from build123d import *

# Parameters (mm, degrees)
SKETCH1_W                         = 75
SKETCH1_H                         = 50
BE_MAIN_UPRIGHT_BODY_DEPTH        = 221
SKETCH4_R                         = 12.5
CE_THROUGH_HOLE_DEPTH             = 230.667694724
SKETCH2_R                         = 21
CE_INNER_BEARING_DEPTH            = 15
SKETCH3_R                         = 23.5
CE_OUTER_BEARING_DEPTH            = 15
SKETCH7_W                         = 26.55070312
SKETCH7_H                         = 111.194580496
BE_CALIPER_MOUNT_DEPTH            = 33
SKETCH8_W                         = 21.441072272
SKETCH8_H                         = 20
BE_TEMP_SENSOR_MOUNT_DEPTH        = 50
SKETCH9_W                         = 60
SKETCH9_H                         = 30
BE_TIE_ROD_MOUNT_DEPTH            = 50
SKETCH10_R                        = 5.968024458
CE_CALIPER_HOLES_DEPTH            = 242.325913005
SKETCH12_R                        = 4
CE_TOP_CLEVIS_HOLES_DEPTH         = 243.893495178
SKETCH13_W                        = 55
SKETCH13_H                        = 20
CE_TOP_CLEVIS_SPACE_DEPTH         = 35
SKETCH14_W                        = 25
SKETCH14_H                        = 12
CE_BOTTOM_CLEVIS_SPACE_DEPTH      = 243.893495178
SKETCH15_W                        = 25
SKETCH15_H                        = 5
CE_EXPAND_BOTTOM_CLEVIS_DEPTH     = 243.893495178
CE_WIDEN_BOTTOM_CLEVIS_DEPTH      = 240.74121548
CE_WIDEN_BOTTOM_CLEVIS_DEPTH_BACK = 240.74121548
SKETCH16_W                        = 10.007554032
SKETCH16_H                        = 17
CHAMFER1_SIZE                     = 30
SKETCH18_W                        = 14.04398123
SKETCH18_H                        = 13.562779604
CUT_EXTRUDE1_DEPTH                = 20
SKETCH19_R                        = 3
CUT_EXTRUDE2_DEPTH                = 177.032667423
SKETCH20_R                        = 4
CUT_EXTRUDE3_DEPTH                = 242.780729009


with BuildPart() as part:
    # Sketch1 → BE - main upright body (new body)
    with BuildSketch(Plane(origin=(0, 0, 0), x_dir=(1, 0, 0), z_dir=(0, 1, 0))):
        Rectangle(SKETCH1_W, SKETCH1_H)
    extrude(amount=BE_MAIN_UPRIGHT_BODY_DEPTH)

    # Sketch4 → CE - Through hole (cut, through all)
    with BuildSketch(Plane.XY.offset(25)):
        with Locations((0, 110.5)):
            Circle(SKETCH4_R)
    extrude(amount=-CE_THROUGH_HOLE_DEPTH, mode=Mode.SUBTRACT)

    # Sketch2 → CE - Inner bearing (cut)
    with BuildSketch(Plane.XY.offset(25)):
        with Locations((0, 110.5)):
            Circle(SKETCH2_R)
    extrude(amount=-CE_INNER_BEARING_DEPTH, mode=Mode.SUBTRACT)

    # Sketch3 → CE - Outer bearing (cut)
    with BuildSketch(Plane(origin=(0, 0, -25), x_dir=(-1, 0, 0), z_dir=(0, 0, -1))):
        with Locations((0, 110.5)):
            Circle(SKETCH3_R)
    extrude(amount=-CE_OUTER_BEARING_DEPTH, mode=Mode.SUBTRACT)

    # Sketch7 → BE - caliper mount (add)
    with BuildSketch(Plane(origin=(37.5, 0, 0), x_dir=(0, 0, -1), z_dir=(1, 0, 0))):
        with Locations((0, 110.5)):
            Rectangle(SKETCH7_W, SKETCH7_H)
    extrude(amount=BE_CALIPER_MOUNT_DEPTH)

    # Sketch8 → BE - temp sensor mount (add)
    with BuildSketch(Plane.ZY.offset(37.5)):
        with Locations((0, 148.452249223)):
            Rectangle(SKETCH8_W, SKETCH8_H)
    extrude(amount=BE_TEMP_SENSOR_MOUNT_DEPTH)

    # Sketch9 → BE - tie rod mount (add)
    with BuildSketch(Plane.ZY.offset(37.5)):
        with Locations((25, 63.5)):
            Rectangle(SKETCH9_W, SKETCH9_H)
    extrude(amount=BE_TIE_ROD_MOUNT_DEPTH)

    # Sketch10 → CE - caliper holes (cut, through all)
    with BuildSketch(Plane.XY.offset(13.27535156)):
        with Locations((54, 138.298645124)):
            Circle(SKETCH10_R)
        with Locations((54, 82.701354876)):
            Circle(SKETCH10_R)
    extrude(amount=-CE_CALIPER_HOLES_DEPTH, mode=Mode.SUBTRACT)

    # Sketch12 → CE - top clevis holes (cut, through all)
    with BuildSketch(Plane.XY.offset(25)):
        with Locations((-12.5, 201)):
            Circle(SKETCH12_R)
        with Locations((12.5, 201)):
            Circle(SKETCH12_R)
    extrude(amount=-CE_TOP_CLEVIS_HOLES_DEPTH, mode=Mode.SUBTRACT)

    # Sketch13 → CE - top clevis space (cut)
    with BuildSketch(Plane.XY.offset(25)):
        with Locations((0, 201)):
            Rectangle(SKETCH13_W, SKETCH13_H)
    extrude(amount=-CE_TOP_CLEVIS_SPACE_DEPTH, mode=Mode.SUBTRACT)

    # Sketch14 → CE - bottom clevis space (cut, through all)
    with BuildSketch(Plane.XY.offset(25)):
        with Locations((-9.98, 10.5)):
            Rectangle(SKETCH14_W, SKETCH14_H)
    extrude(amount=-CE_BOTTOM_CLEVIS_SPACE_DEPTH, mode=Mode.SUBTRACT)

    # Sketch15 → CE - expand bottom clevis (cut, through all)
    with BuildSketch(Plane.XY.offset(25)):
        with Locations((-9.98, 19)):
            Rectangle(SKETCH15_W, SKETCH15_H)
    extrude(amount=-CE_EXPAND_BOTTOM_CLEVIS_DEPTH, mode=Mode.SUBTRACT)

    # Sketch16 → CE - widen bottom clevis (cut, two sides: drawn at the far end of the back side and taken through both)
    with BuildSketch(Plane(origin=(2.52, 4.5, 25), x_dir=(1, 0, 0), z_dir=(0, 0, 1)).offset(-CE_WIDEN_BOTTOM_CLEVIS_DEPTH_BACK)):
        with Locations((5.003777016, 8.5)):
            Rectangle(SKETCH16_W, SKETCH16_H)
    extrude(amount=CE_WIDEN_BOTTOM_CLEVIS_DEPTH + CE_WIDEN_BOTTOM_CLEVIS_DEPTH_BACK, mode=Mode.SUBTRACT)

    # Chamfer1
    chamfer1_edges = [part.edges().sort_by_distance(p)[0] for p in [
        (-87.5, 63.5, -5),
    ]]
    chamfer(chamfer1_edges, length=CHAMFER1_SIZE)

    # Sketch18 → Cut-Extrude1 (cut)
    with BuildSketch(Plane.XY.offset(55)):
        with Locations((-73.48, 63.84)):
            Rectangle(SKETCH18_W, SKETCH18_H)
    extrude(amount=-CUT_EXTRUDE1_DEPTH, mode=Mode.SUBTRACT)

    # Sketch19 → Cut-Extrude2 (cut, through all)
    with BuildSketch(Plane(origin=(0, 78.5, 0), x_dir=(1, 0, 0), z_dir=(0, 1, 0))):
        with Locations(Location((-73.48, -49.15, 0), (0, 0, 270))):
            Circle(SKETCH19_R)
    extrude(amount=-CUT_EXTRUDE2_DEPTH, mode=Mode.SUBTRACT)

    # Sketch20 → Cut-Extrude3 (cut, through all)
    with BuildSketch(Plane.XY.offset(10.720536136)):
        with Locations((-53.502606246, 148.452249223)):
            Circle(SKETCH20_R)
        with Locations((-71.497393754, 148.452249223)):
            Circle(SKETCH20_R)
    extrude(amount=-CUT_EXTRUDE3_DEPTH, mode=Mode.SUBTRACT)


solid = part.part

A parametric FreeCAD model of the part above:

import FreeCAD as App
import Part
import Sketcher
Q = App.Units.Quantity


def edges_at(feature, points):
    """Names of the edges that pass closest to the given points."""
    edges = feature.Shape.Edges
    near = lambda p: min(range(len(edges)), key=lambda i: edges[i].distToShape(Part.Vertex(*p))[0])
    return sorted({f"Edge{near(p) + 1}" for p in points})


def add_polygon(sketch, points):
    """Adds a closed chain of lines whose ends are joined by coincident constraints."""
    first, n = sketch.GeometryCount, len(points)
    for a, b in zip(points, points[1:] + points[:1]):
        sketch.addGeometry(Part.LineSegment(App.Vector(*a, 0), App.Vector(*b, 0)), False)
    for i in range(n):
        sketch.addConstraint(Sketcher.Constraint("Coincident", first + i, 2, first + (i + 1) % n, 1))

doc = App.newDocument("Part")
params = doc.addObject("Spreadsheet::Sheet", "Params")
for row, (alias, value) in enumerate([
    ("sketch1_width", "75 mm"),
    ("sketch1_height", "50 mm"),
    ("pad1_length", "221 mm"),
    ("sketch2_diameter", "25 mm"),
    ("sketch3_diameter", "42 mm"),
    ("pocket2_length", "15 mm"),
    ("sketch4_diameter", "47 mm"),
    ("pocket3_length", "15 mm"),
    ("pad2_length", "33 mm"),
    ("sketch6_width", "20 mm"),
    ("pad3_length", "50 mm"),
    ("sketch7_width", "30 mm"),
    ("sketch7_height", "60 mm"),
    ("pad4_length", "50 mm"),
    ("sketch9_diameter", "8 mm"),
    ("sketch10_width", "55 mm"),
    ("sketch10_height", "20 mm"),
    ("pocket6_length", "35 mm"),
    ("sketch11_width", "25 mm"),
    ("sketch11_height", "12 mm"),
    ("sketch12_width", "25 mm"),
    ("sketch12_height", "5 mm"),
    ("sketch13_height", "17 mm"),
    ("chamfer_size", "30 mm"),
    ("pocket10_length", "20 mm"),
    ("sketch15_diameter", "6 mm"),
    ("sketch16_diameter", "8 mm"),
], start=1):
    params.set(f"A{row}", alias)
    params.set(f"B{row}", "=" + value)
    params.setAlias(f"B{row}", alias)

body = doc.addObject("PartDesign::Body", "Body")

# Sketch on XZ plane
sketch1 = body.newObject("Sketcher::SketchObject", "Sketch")
sketch1.AttachmentSupport = (doc.getObject("XZ_Plane"), [""])
sketch1.MapMode = "FlatFace"
add_polygon(sketch1, [(-38, -25), (-38, 25), (38, 25), (38, -25)])  # lines 0-3
sketch1.addConstraint(Sketcher.Constraint("Vertical", 0))
sketch1.addConstraint(Sketcher.Constraint("Horizontal", 1))
sketch1.addConstraint(Sketcher.Constraint("Vertical", 2))
sketch1.addConstraint(Sketcher.Constraint("Horizontal", 3))
sketch1.addConstraint(Sketcher.Constraint("Symmetric", 0, 2, 2, 2, -1, 1))
sketch1.addConstraint(Sketcher.Constraint("DistanceX", 1, 1, 1, 2, Q("75 mm")))
sketch1.addConstraint(Sketcher.Constraint("DistanceY", 0, 1, 0, 2, Q("50 mm")))
sketch1.setExpression("Constraints[9]", "Params.sketch1_width")
sketch1.setExpression("Constraints[10]", "Params.sketch1_height")
pad1 = body.newObject("PartDesign::Pad", "Pad")
pad1.Profile = sketch1
pad1.setExpression("Length", "Params.pad1_length")
pad1.Reversed = True

# Sketch on XY plane
sketch2 = body.newObject("Sketcher::SketchObject", "Sketch001")
sketch2.AttachmentSupport = (doc.getObject("XY_Plane"), [""])
sketch2.MapMode = "FlatFace"
sketch2.AttachmentOffset = App.Placement(App.Vector(0, 0, 25), App.Rotation())
sketch2.addGeometry(Part.Circle(App.Vector(0, 110, 0), App.Vector(0, 0, 1), 12), False)
sketch2.addConstraint(Sketcher.Constraint("PointOnObject", 0, 3, -2))
sketch2.addConstraint(Sketcher.Constraint("Diameter", 0, Q("25 mm")))
sketch2.addConstraint(Sketcher.Constraint("DistanceY", -1, 1, 0, 3, Q("110.5 mm")))
sketch2.setExpression("Constraints[1]", "Params.sketch2_diameter")
pocket1 = body.newObject("PartDesign::Pocket", "Pocket")
pocket1.Profile = sketch2
pocket1.Type = "ThroughAll"

# Sketch on XY plane
sketch3 = body.newObject("Sketcher::SketchObject", "Sketch002")
sketch3.AttachmentSupport = (doc.getObject("XY_Plane"), [""])
sketch3.MapMode = "FlatFace"
sketch3.AttachmentOffset = App.Placement(App.Vector(0, 0, 25), App.Rotation())
sketch3.addGeometry(Part.Circle(App.Vector(0, 110, 0), App.Vector(0, 0, 1), 21), False)
sketch3.addConstraint(Sketcher.Constraint("PointOnObject", 0, 3, -2))
sketch3.addConstraint(Sketcher.Constraint("Diameter", 0, Q("42 mm")))
sketch3.addConstraint(Sketcher.Constraint("DistanceY", -1, 1, 0, 3, Q("110.5 mm")))
sketch3.setExpression("Constraints[1]", "Params.sketch3_diameter")
pocket2 = body.newObject("PartDesign::Pocket", "Pocket001")
pocket2.Profile = sketch3
pocket2.setExpression("Length", "Params.pocket2_length")

# Sketch on XY plane
sketch4 = body.newObject("Sketcher::SketchObject", "Sketch003")
sketch4.AttachmentSupport = (doc.getObject("XY_Plane"), [""])
sketch4.MapMode = "FlatFace"
sketch4.AttachmentOffset = App.Placement(App.Vector(0, 0, -25), App.Rotation())
sketch4.addGeometry(Part.Circle(App.Vector(0, 110, 0), App.Vector(0, 0, 1), 24), False)
sketch4.addConstraint(Sketcher.Constraint("PointOnObject", 0, 3, -2))
sketch4.addConstraint(Sketcher.Constraint("Diameter", 0, Q("47 mm")))
sketch4.addConstraint(Sketcher.Constraint("DistanceY", -1, 1, 0, 3, Q("110.5 mm")))
sketch4.setExpression("Constraints[1]", "Params.sketch4_diameter")
pocket3 = body.newObject("PartDesign::Pocket", "Pocket002")
pocket3.Profile = sketch4
pocket3.setExpression("Length", "Params.pocket3_length")
pocket3.Reversed = True

# Sketch on YZ plane
sketch5 = body.newObject("Sketcher::SketchObject", "Sketch004")
sketch5.AttachmentSupport = (doc.getObject("YZ_Plane"), [""])
sketch5.MapMode = "FlatFace"
sketch5.AttachmentOffset = App.Placement(App.Vector(0, 0, 37.5), App.Rotation())
add_polygon(sketch5, [(166, 13), (55, 13), (55, -13), (166, -13)])  # lines 0-3
sketch5.addConstraint(Sketcher.Constraint("Horizontal", 0))
sketch5.addConstraint(Sketcher.Constraint("Vertical", 1))
sketch5.addConstraint(Sketcher.Constraint("Horizontal", 2))
sketch5.addConstraint(Sketcher.Constraint("Vertical", 3))
sketch5.addConstraint(Sketcher.Constraint("DistanceX", 0, 2, 0, 1, Q("111.19458 mm")))
sketch5.addConstraint(Sketcher.Constraint("DistanceY", 1, 2, 1, 1, Q("26.550703 mm")))
sketch5.addConstraint(Sketcher.Constraint("DistanceX", -1, 1, 0, 2, Q("54.90271 mm")))
sketch5.addConstraint(Sketcher.Constraint("DistanceY", -1, 1, 0, 2, Q("13.275352 mm")))
pad2 = body.newObject("PartDesign::Pad", "Pad001")
pad2.Profile = sketch5
pad2.setExpression("Length", "Params.pad2_length")

# Sketch on YZ plane
sketch6 = body.newObject("Sketcher::SketchObject", "Sketch005")
sketch6.AttachmentSupport = (doc.getObject("YZ_Plane"), [""])
sketch6.MapMode = "FlatFace"
sketch6.AttachmentOffset = App.Placement(App.Vector(0, 0, -37.5), App.Rotation())
add_polygon(sketch6, [(158, -11), (138, -11), (138, 11), (158, 11)])  # lines 0-3
sketch6.addConstraint(Sketcher.Constraint("Horizontal", 0))
sketch6.addConstraint(Sketcher.Constraint("Vertical", 1))
sketch6.addConstraint(Sketcher.Constraint("Horizontal", 2))
sketch6.addConstraint(Sketcher.Constraint("Vertical", 3))
sketch6.addConstraint(Sketcher.Constraint("DistanceX", 0, 2, 0, 1, Q("20 mm")))
sketch6.addConstraint(Sketcher.Constraint("DistanceY", 1, 1, 1, 2, Q("21.441072 mm")))
sketch6.addConstraint(Sketcher.Constraint("DistanceX", -1, 1, 0, 2, Q("138.452249 mm")))
sketch6.addConstraint(Sketcher.Constraint("DistanceY", 0, 2, -1, 1, Q("10.720536 mm")))
sketch6.setExpression("Constraints[8]", "Params.sketch6_width")
pad3 = body.newObject("PartDesign::Pad", "Pad002")
pad3.Profile = sketch6
pad3.setExpression("Length", "Params.pad3_length")
pad3.Reversed = True

# Sketch on YZ plane
sketch7 = body.newObject("Sketcher::SketchObject", "Sketch006")
sketch7.AttachmentSupport = (doc.getObject("YZ_Plane"), [""])
sketch7.MapMode = "FlatFace"
sketch7.AttachmentOffset = App.Placement(App.Vector(0, 0, -37.5), App.Rotation())
add_polygon(sketch7, [(78, -5), (48, -5), (48, 55), (78, 55)])  # lines 0-3
sketch7.addConstraint(Sketcher.Constraint("Horizontal", 0))
sketch7.addConstraint(Sketcher.Constraint("Vertical", 1))
sketch7.addConstraint(Sketcher.Constraint("Horizontal", 2))
sketch7.addConstraint(Sketcher.Constraint("Vertical", 3))
sketch7.addConstraint(Sketcher.Constraint("DistanceX", 0, 2, 0, 1, Q("30 mm")))
sketch7.addConstraint(Sketcher.Constraint("DistanceY", 1, 1, 1, 2, Q("60 mm")))
sketch7.addConstraint(Sketcher.Constraint("DistanceY", 0, 2, -1, 1, Q("5 mm")))
sketch7.addConstraint(Sketcher.Constraint("DistanceX", -1, 1, 0, 2, Q("48.5 mm")))
sketch7.setExpression("Constraints[8]", "Params.sketch7_width")
sketch7.setExpression("Constraints[9]", "Params.sketch7_height")
pad4 = body.newObject("PartDesign::Pad", "Pad003")
pad4.Profile = sketch7
pad4.setExpression("Length", "Params.pad4_length")
pad4.Reversed = True

# Sketch on XY plane
sketch8 = body.newObject("Sketcher::SketchObject", "Sketch007")
sketch8.AttachmentSupport = (doc.getObject("XY_Plane"), [""])
sketch8.MapMode = "FlatFace"
sketch8.AttachmentOffset = App.Placement(App.Vector(0, 0, 13.275352), App.Rotation())
sketch8.addGeometry(Part.Circle(App.Vector(54, 138, 0), App.Vector(0, 0, 1), 6), False)
sketch8.addGeometry(Part.Circle(App.Vector(54, 83, 0), App.Vector(0, 0, 1), 6), False)
sketch8.addConstraint(Sketcher.Constraint("Equal", 0, 1))
sketch8.addConstraint(Sketcher.Constraint("Vertical", 0, 3, 1, 3))
sketch8.addConstraint(Sketcher.Constraint("DistanceX", -1, 1, 0, 3, Q("54 mm")))
sketch8.addConstraint(Sketcher.Constraint("Diameter", 0, Q("11.936049 mm")))
sketch8.addConstraint(Sketcher.Constraint("DistanceY", 1, 3, 0, 3, Q("55.59729 mm")))
sketch8.addConstraint(Sketcher.Constraint("DistanceY", -1, 1, 0, 3, Q("138.298645 mm")))
pocket4 = body.newObject("PartDesign::Pocket", "Pocket003")
pocket4.Profile = sketch8
pocket4.Type = "ThroughAll"

# Sketch on XY plane
sketch9 = body.newObject("Sketcher::SketchObject", "Sketch008")
sketch9.AttachmentSupport = (doc.getObject("XY_Plane"), [""])
sketch9.MapMode = "FlatFace"
sketch9.AttachmentOffset = App.Placement(App.Vector(0, 0, 25), App.Rotation())
sketch9.addGeometry(Part.Circle(App.Vector(-12.5, 201, 0), App.Vector(0, 0, 1), 4), False)
sketch9.addGeometry(Part.Circle(App.Vector(12.5, 201, 0), App.Vector(0, 0, 1), 4), False)
sketch9.addConstraint(Sketcher.Constraint("Equal", 0, 1))
sketch9.addConstraint(Sketcher.Constraint("Symmetric", 0, 3, 1, 3, -2))
sketch9.addConstraint(Sketcher.Constraint("Diameter", 0, Q("8 mm")))
sketch9.addConstraint(Sketcher.Constraint("DistanceY", -1, 1, 0, 3, Q("201 mm")))
sketch9.addConstraint(Sketcher.Constraint("DistanceX", 0, 3, 1, 3, Q("25 mm")))
sketch9.setExpression("Constraints[2]", "Params.sketch9_diameter")
pocket5 = body.newObject("PartDesign::Pocket", "Pocket004")
pocket5.Profile = sketch9
pocket5.Type = "ThroughAll"

# Sketch on XY plane
sketch10 = body.newObject("Sketcher::SketchObject", "Sketch009")
sketch10.AttachmentSupport = (doc.getObject("XY_Plane"), [""])
sketch10.MapMode = "FlatFace"
sketch10.AttachmentOffset = App.Placement(App.Vector(0, 0, 25), App.Rotation())
add_polygon(sketch10, [(-28, 211), (-28, 191), (28, 191), (28, 211)])  # lines 0-3
sketch10.addConstraint(Sketcher.Constraint("Vertical", 0))
sketch10.addConstraint(Sketcher.Constraint("Horizontal", 1))
sketch10.addConstraint(Sketcher.Constraint("Vertical", 2))
sketch10.addConstraint(Sketcher.Constraint("Horizontal", 3))
sketch10.addConstraint(Sketcher.Constraint("DistanceX", 1, 1, 1, 2, Q("55 mm")))
sketch10.addConstraint(Sketcher.Constraint("DistanceY", 0, 2, 0, 1, Q("20 mm")))
sketch10.addConstraint(Sketcher.Constraint("DistanceY", -1, 1, 0, 2, Q("191 mm")))
sketch10.addConstraint(Sketcher.Constraint("DistanceX", 0, 2, -1, 1, Q("27.5 mm")))
sketch10.setExpression("Constraints[8]", "Params.sketch10_width")
sketch10.setExpression("Constraints[9]", "Params.sketch10_height")
pocket6 = body.newObject("PartDesign::Pocket", "Pocket005")
pocket6.Profile = sketch10
pocket6.setExpression("Length", "Params.pocket6_length")

# Sketch on XY plane
sketch11 = body.newObject("Sketcher::SketchObject", "Sketch010")
sketch11.AttachmentSupport = (doc.getObject("XY_Plane"), [""])
sketch11.MapMode = "FlatFace"
sketch11.AttachmentOffset = App.Placement(App.Vector(0, 0, 25), App.Rotation())
add_polygon(sketch11, [(-22, 16), (-22, 4), (3, 4), (3, 16)])  # lines 0-3
sketch11.addConstraint(Sketcher.Constraint("Vertical", 0))
sketch11.addConstraint(Sketcher.Constraint("Horizontal", 1))
sketch11.addConstraint(Sketcher.Constraint("Vertical", 2))
sketch11.addConstraint(Sketcher.Constraint("Horizontal", 3))
sketch11.addConstraint(Sketcher.Constraint("DistanceX", 1, 1, 1, 2, Q("25 mm")))
sketch11.addConstraint(Sketcher.Constraint("DistanceY", 0, 2, 0, 1, Q("12 mm")))
sketch11.addConstraint(Sketcher.Constraint("DistanceY", -1, 1, 0, 2, Q("4.5 mm")))
sketch11.addConstraint(Sketcher.Constraint("DistanceX", 0, 2, -1, 1, Q("22.48 mm")))
sketch11.setExpression("Constraints[8]", "Params.sketch11_width")
sketch11.setExpression("Constraints[9]", "Params.sketch11_height")
pocket7 = body.newObject("PartDesign::Pocket", "Pocket006")
pocket7.Profile = sketch11
pocket7.Type = "ThroughAll"

# Sketch on XY plane
sketch12 = body.newObject("Sketcher::SketchObject", "Sketch011")
sketch12.AttachmentSupport = (doc.getObject("XY_Plane"), [""])
sketch12.MapMode = "FlatFace"
sketch12.AttachmentOffset = App.Placement(App.Vector(0, 0, 25), App.Rotation())
add_polygon(sketch12, [(-22, 22), (-22, 16), (3, 16), (3, 22)])  # lines 0-3
sketch12.addConstraint(Sketcher.Constraint("Vertical", 0))
sketch12.addConstraint(Sketcher.Constraint("Horizontal", 1))
sketch12.addConstraint(Sketcher.Constraint("Vertical", 2))
sketch12.addConstraint(Sketcher.Constraint("Horizontal", 3))
sketch12.addConstraint(Sketcher.Constraint("DistanceX", 1, 1, 1, 2, Q("25 mm")))
sketch12.addConstraint(Sketcher.Constraint("DistanceY", 0, 2, 0, 1, Q("5 mm")))
sketch12.addConstraint(Sketcher.Constraint("DistanceY", -1, 1, 0, 2, Q("16.5 mm")))
sketch12.addConstraint(Sketcher.Constraint("DistanceX", 0, 2, -1, 1, Q("22.48 mm")))
sketch12.setExpression("Constraints[8]", "Params.sketch12_width")
sketch12.setExpression("Constraints[9]", "Params.sketch12_height")
pocket8 = body.newObject("PartDesign::Pocket", "Pocket007")
pocket8.Profile = sketch12
pocket8.Type = "ThroughAll"

# Sketch on XY plane
sketch13 = body.newObject("Sketcher::SketchObject", "Sketch012")
sketch13.AttachmentSupport = (doc.getObject("XY_Plane"), [""])
sketch13.MapMode = "FlatFace"
sketch13.AttachmentOffset = App.Placement(App.Vector(0, 0, 25), App.Rotation())
add_polygon(sketch13, [(3, 22), (3, 4), (13, 4), (13, 22)])  # lines 0-3
sketch13.addConstraint(Sketcher.Constraint("Vertical", 0))
sketch13.addConstraint(Sketcher.Constraint("Horizontal", 1))
sketch13.addConstraint(Sketcher.Constraint("Vertical", 2))
sketch13.addConstraint(Sketcher.Constraint("Horizontal", 3))
sketch13.addConstraint(Sketcher.Constraint("DistanceY", 0, 2, 0, 1, Q("17 mm")))
sketch13.addConstraint(Sketcher.Constraint("DistanceY", -1, 1, 0, 2, Q("4.5 mm")))
sketch13.addConstraint(Sketcher.Constraint("DistanceX", -1, 1, 0, 2, Q("2.52 mm")))
sketch13.addConstraint(Sketcher.Constraint("DistanceX", 1, 1, 1, 2, Q("10.007554 mm")))
sketch13.setExpression("Constraints[8]", "Params.sketch13_height")
pocket9 = body.newObject("PartDesign::Pocket", "Pocket008")
pocket9.Profile = sketch13
pocket9.Type = "ThroughAll"
pocket9.Midplane = True
doc.recompute()

chamfer = body.newObject("PartDesign::Chamfer", "Chamfer")
chamfer.Base = (pocket9, edges_at(pocket9, [(-87.5, 63.5, -5)]))
chamfer.setExpression("Size", "Params.chamfer_size")

# Sketch on XY plane
sketch14 = body.newObject("Sketcher::SketchObject", "Sketch013")
sketch14.AttachmentSupport = (doc.getObject("XY_Plane"), [""])
sketch14.MapMode = "FlatFace"
sketch14.AttachmentOffset = App.Placement(App.Vector(0, 0, 55), App.Rotation())
add_polygon(sketch14, [(-81, 71), (-81, 57), (-66, 57), (-66, 71)])  # lines 0-3
sketch14.addConstraint(Sketcher.Constraint("Vertical", 0))
sketch14.addConstraint(Sketcher.Constraint("Horizontal", 1))
sketch14.addConstraint(Sketcher.Constraint("Vertical", 2))
sketch14.addConstraint(Sketcher.Constraint("Horizontal", 3))
sketch14.addConstraint(Sketcher.Constraint("DistanceX", 1, 1, 1, 2, Q("14.043981 mm")))
sketch14.addConstraint(Sketcher.Constraint("DistanceY", 0, 2, 0, 1, Q("13.56278 mm")))
sketch14.addConstraint(Sketcher.Constraint("DistanceX", 0, 2, -1, 1, Q("80.501991 mm")))
sketch14.addConstraint(Sketcher.Constraint("DistanceY", -1, 1, 0, 2, Q("57.05861 mm")))
pocket10 = body.newObject("PartDesign::Pocket", "Pocket009")
pocket10.Profile = sketch14
pocket10.setExpression("Length", "Params.pocket10_length")

# Sketch on XZ plane
sketch15 = body.newObject("Sketcher::SketchObject", "Sketch014")
sketch15.AttachmentSupport = (doc.getObject("XZ_Plane"), [""])
sketch15.MapMode = "FlatFace"
sketch15.AttachmentOffset = App.Placement(App.Vector(0, 0, -78.5), App.Rotation())
sketch15.addGeometry(Part.Circle(App.Vector(-73.5, 49.1, 0), App.Vector(0, 0, 1), 3), False)
sketch15.addConstraint(Sketcher.Constraint("Diameter", 0, Q("6 mm")))
sketch15.addConstraint(Sketcher.Constraint("DistanceX", 0, 3, -1, 1, Q("73.48 mm")))
sketch15.addConstraint(Sketcher.Constraint("DistanceY", -1, 1, 0, 3, Q("49.15 mm")))
sketch15.setExpression("Constraints[0]", "Params.sketch15_diameter")
pocket11 = body.newObject("PartDesign::Pocket", "Pocket010")
pocket11.Profile = sketch15
pocket11.Type = "ThroughAll"
pocket11.Reversed = True

# Sketch on XY plane
sketch16 = body.newObject("Sketcher::SketchObject", "Sketch015")
sketch16.AttachmentSupport = (doc.getObject("XY_Plane"), [""])
sketch16.MapMode = "FlatFace"
sketch16.AttachmentOffset = App.Placement(App.Vector(0, 0, 10.720536), App.Rotation())
sketch16.addGeometry(Part.Circle(App.Vector(-53.5, 148.5, 0), App.Vector(0, 0, 1), 4), False)
sketch16.addGeometry(Part.Circle(App.Vector(-71.5, 148.5, 0), App.Vector(0, 0, 1), 4), False)
sketch16.addConstraint(Sketcher.Constraint("Equal", 0, 1))
sketch16.addConstraint(Sketcher.Constraint("Horizontal", 0, 3, 1, 3))
sketch16.addConstraint(Sketcher.Constraint("Diameter", 0, Q("8 mm")))
sketch16.addConstraint(Sketcher.Constraint("DistanceY", -1, 1, 0, 3, Q("148.452249 mm")))
sketch16.addConstraint(Sketcher.Constraint("DistanceX", 0, 3, -1, 1, Q("53.502606 mm")))
sketch16.addConstraint(Sketcher.Constraint("DistanceX", 1, 3, -1, 1, Q("71.497394 mm")))
sketch16.setExpression("Constraints[2]", "Params.sketch16_diameter")
pocket12 = body.newObject("PartDesign::Pocket", "Pocket011")
pocket12.Profile = sketch16
pocket12.Type = "ThroughAll"

doc.recompute()
